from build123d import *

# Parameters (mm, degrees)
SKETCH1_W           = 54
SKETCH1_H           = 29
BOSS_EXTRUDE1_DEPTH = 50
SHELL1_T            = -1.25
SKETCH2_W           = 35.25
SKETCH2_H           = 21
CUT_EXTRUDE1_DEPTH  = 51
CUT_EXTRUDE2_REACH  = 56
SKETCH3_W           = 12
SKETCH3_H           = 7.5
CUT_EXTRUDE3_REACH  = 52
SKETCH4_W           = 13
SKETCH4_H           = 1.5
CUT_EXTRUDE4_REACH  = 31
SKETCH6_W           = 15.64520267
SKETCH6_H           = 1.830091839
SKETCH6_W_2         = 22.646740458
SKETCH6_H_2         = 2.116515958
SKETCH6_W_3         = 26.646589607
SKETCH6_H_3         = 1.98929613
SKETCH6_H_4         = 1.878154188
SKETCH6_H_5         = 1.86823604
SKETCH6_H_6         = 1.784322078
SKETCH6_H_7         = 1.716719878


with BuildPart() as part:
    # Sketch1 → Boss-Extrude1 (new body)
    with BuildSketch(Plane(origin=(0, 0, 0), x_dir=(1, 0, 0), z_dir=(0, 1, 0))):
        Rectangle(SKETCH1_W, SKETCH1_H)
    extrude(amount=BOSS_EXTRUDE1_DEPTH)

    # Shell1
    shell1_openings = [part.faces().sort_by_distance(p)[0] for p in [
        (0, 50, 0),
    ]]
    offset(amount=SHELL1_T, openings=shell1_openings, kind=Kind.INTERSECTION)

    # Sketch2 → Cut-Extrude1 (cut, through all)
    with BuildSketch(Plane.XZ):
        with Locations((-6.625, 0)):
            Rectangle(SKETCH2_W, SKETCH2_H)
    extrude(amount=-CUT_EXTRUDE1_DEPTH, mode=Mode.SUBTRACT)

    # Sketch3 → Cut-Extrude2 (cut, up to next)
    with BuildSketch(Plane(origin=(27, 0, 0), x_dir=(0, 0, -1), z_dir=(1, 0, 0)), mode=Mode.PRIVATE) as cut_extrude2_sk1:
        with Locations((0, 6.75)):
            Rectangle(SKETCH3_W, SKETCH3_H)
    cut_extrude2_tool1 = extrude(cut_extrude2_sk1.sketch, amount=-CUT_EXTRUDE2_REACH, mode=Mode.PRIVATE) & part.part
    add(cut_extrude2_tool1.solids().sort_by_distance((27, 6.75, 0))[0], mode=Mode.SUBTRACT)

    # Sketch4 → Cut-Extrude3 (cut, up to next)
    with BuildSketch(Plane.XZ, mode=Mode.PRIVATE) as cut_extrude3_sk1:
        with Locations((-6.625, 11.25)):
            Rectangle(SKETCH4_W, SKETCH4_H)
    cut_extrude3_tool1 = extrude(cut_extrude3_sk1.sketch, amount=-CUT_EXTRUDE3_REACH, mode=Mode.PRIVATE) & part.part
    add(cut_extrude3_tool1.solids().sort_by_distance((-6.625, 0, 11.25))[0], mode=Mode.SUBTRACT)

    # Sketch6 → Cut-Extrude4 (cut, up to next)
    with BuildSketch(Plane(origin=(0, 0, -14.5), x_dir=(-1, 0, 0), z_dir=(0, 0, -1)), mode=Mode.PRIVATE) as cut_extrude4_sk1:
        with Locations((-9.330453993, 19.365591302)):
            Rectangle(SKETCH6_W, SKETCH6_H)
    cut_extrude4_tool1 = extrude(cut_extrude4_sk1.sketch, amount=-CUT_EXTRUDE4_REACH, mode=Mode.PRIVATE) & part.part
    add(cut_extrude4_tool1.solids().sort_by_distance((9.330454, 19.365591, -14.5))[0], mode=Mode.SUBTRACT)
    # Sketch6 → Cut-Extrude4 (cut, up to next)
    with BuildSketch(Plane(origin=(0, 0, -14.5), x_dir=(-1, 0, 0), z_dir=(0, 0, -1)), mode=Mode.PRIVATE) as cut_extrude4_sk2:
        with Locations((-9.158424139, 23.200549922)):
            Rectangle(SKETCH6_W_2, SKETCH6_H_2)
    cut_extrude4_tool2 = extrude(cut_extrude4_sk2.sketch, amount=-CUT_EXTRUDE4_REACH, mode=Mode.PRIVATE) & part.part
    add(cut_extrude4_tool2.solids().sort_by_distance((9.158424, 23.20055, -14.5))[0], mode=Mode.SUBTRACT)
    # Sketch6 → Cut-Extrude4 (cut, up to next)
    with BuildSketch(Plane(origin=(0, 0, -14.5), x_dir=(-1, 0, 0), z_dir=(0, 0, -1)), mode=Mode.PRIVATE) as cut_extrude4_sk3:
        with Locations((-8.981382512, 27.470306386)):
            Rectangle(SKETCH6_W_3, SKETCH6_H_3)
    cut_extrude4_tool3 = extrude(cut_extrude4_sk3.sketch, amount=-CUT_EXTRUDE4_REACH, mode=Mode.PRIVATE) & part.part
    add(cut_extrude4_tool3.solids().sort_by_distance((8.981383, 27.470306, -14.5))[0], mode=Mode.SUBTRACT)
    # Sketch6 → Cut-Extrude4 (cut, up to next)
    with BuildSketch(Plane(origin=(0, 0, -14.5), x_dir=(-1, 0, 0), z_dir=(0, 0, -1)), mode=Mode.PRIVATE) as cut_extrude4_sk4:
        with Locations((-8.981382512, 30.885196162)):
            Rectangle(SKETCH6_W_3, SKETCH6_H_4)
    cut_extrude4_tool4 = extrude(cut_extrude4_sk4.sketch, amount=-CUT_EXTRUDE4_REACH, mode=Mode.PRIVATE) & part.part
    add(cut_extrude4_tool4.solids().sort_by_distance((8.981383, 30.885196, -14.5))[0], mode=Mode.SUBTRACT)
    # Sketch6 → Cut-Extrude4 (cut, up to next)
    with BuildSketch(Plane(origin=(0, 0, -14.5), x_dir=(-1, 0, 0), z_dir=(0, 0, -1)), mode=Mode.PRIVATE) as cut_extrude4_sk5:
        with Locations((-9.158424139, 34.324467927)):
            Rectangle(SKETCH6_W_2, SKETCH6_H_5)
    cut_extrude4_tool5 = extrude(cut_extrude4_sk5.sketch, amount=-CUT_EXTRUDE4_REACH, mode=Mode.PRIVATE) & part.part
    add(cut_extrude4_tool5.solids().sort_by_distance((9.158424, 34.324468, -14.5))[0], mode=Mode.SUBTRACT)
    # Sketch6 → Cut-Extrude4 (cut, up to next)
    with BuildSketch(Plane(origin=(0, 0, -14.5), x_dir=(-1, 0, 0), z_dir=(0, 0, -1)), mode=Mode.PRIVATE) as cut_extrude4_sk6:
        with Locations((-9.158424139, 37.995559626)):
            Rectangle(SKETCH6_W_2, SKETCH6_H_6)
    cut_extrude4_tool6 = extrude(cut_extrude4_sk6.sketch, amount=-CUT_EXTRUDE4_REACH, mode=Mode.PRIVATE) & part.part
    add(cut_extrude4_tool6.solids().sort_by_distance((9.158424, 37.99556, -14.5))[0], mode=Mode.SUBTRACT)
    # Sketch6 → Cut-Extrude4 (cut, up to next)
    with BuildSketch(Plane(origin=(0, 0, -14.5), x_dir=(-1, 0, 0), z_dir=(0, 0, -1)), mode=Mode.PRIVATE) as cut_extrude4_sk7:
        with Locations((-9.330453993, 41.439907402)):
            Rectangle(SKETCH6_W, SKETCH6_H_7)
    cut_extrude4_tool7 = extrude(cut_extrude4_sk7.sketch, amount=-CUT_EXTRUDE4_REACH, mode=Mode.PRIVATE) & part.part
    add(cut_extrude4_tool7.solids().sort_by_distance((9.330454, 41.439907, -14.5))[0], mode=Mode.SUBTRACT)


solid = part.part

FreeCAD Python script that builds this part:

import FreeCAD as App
import Part
import Sketcher

V = App.Vector
Q = App.Units.Quantity


def faces_at(feature, points):
    """Names of the faces that lie closest to the given points."""
    faces = feature.Shape.Faces
    near = lambda p: min(range(len(faces)), key=lambda i: faces[i].distToShape(Part.Vertex(*p))[0])
    return sorted({f"Face{near(p) + 1}" for p in points})


def add_polygon(sketch, points):
    """Adds a closed chain of lines whose ends are joined by coincident constraints."""
    first, n = sketch.GeometryCount, len(points)
    for a, b in zip(points, points[1:] + points[:1]):
        sketch.addGeometry(Part.LineSegment(App.Vector(*a, 0), App.Vector(*b, 0)), False)
    for i in range(n):
        sketch.addConstraint(Sketcher.Constraint("Coincident", first + i, 2, first + (i + 1) % n, 1))

doc = App.newDocument("Part")
body = doc.addObject("PartDesign::Body", "Body")

sketch1 = body.newObject("Sketcher::SketchObject", "Sketch")
sketch1.AttachmentSupport = (doc.getObject("XZ_Plane"), [""])
sketch1.MapMode = "FlatFace"
add_polygon(sketch1, [(-27, -14), (-27, 14), (27, 14), (27, -14)])
sketch1.addConstraint([
    Sketcher.Constraint("Vertical", 0),
    Sketcher.Constraint("Horizontal", 1),
    Sketcher.Constraint("Vertical", 2),
    Sketcher.Constraint("Horizontal", 3),
    Sketcher.Constraint("Symmetric", 0, 2, 2, 2, -1, 1),
    Sketcher.Constraint("DistanceX", 1, 1, 1, 2, Q("54 mm")),
    Sketcher.Constraint("DistanceY", 0, 1, 0, 2, Q("29 mm")),
])
pad1 = body.newObject("PartDesign::Pad", "Pad")
pad1.Profile = sketch1
pad1.Length = 50
pad1.Reversed = True
doc.recompute()

thickness = body.newObject("PartDesign::Thickness", "Thickness")
thickness.Base = (pad1, faces_at(pad1, [(0, 50, 0)]))
thickness.Value = 1.25
thickness.Reversed = True
thickness.Join = "Intersection"

sketch2 = body.newObject("Sketcher::SketchObject", "Sketch001")
sketch2.AttachmentSupport = (doc.getObject("XZ_Plane"), [""])
sketch2.MapMode = "FlatFace"
add_polygon(sketch2, [(-24, 10), (-24, -10), (11, -10), (11, 10)])
sketch2.addConstraint([
    Sketcher.Constraint("Vertical", 0),
    Sketcher.Constraint("Horizontal", 1),
    Sketcher.Constraint("Vertical", 2),
    Sketcher.Constraint("Horizontal", 3),
    Sketcher.Constraint("DistanceY", 0, 2, 0, 1, Q("21 mm")),
    Sketcher.Constraint("DistanceX", -1, 1, 1, 2, Q("11 mm")),
    Sketcher.Constraint("DistanceX", 1, 1, 1, 2, Q("35.25 mm")),
    Sketcher.Constraint("DistanceY", 0, 2, -1, 1, Q("10.5 mm")),
])
pocket1 = body.newObject("PartDesign::Pocket", "Pocket")
pocket1.Profile = sketch2
pocket1.Type = "ThroughAll"

sketch3 = body.newObject("Sketcher::SketchObject", "Sketch002")
sketch3.AttachmentSupport = (doc.getObject("YZ_Plane"), [""])
sketch3.MapMode = "FlatFace"
sketch3.AttachmentOffset = App.Placement(V(0, 0, 27), App.Rotation())
add_polygon(sketch3, [(10, 6), (3, 6), (3, -6), (10, -6)])
sketch3.addConstraint([
    Sketcher.Constraint("Horizontal", 0),
    Sketcher.Constraint("Vertical", 1),
    Sketcher.Constraint("Horizontal", 2),
    Sketcher.Constraint("Vertical", 3),
    Sketcher.Constraint("DistanceY", 1, 2, 1, 1, Q("12 mm")),
    Sketcher.Constraint("DistanceX", 0, 2, 0, 1, Q("7.5 mm")),
    Sketcher.Constraint("DistanceX", -1, 1, 0, 2, Q("3 mm")),
    Sketcher.Constraint("DistanceY", -1, 1, 0, 2, Q("6 mm")),
])
pocket2 = body.newObject("PartDesign::Pocket", "Pocket001")
pocket2.Profile = sketch3
pocket2.Type = "UpToFirst"

sketch4 = body.newObject("Sketcher::SketchObject", "Sketch003")
sketch4.AttachmentSupport = (doc.getObject("XZ_Plane"), [""])
sketch4.MapMode = "FlatFace"
add_polygon(sketch4, [(-13.1, 12), (-13.1, 10.5), (-0.1, 10.5), (-0.1, 12)])
sketch4.addConstraint([
    Sketcher.Constraint("Vertical", 0),
    Sketcher.Constraint("Horizontal", 1),
    Sketcher.Constraint("Vertical", 2),
    Sketcher.Constraint("Horizontal", 3),
    Sketcher.Constraint("DistanceX", 1, 1, 1, 2, Q("13 mm")),
    Sketcher.Constraint("DistanceY", 0, 2, 0, 1, Q("1.5 mm")),
    Sketcher.Constraint("DistanceY", -1, 1, 2, 2, Q("12 mm")),
    Sketcher.Constraint("DistanceX", 0, 2, -1, 1, Q("13.125 mm")),
])
pocket3 = body.newObject("PartDesign::Pocket", "Pocket002")
pocket3.Profile = sketch4
pocket3.Type = "UpToFirst"

sketch5 = body.newObject("Sketcher::SketchObject", "Sketch004")
sketch5.AttachmentSupport = (doc.getObject("XY_Plane"), [""])
sketch5.MapMode = "FlatFace"
sketch5.AttachmentOffset = App.Placement(V(0, 0, -14.5), App.Rotation())
add_polygon(sketch5, [(17.2, 20.3), (17.2, 18.5), (1.5, 18.5), (1.5, 20.3)])
sketch5.addConstraint([
    Sketcher.Constraint("Vertical", 0),
    Sketcher.Constraint("Horizontal", 1),
    Sketcher.Constraint("Vertical", 2),
    Sketcher.Constraint("Horizontal", 3),
    Sketcher.Constraint("DistanceY", 0, 2, 0, 1, Q("1.830092 mm")),
    Sketcher.Constraint("DistanceX", 1, 2, 1, 1, Q("15.645203 mm")),
    Sketcher.Constraint("DistanceX", -1, 1, 0, 2, Q("17.153055 mm")),
    Sketcher.Constraint("DistanceY", -1, 1, 0, 2, Q("18.450545 mm")),
])
pocket4 = body.newObject("PartDesign::Pocket", "Pocket003")
pocket4.Profile = sketch5
pocket4.Type = "UpToFirst"
pocket4.Reversed = True

sketch6 = body.newObject("Sketcher::SketchObject", "Sketch005")
sketch6.AttachmentSupport = (doc.getObject("XY_Plane"), [""])
sketch6.MapMode = "FlatFace"
sketch6.AttachmentOffset = App.Placement(V(0, 0, -14.5), App.Rotation())
add_polygon(sketch6, [(20.5, 24.3), (20.5, 22.1), (-2.2, 22.1), (-2.2, 24.3)])
sketch6.addConstraint([
    Sketcher.Constraint("Vertical", 0),
    Sketcher.Constraint("Horizontal", 1),
    Sketcher.Constraint("Vertical", 2),
    Sketcher.Constraint("Horizontal", 3),
    Sketcher.Constraint("DistanceX", 1, 2, 1, 1, Q("22.64674 mm")),
    Sketcher.Constraint("DistanceY", 0, 2, 0, 1, Q("2.116516 mm")),
    Sketcher.Constraint("DistanceY", -1, 1, 0, 2, Q("22.142292 mm")),
    Sketcher.Constraint("DistanceX", -1, 1, 0, 2, Q("20.481794 mm")),
])
pocket5 = body.newObject("PartDesign::Pocket", "Pocket004")
pocket5.Profile = sketch6
pocket5.Type = "UpToFirst"
pocket5.Reversed = True

sketch7 = body.newObject("Sketcher::SketchObject", "Sketch006")
sketch7.AttachmentSupport = (doc.getObject("XY_Plane"), [""])
sketch7.MapMode = "FlatFace"
sketch7.AttachmentOffset = App.Placement(V(0, 0, -14.5), App.Rotation())
add_polygon(sketch7, [(22.3, 28.5), (22.3, 26.5), (-4.3, 26.5), (-4.3, 28.5)])
sketch7.addConstraint([
    Sketcher.Constraint("Vertical", 0),
    Sketcher.Constraint("Horizontal", 1),
    Sketcher.Constraint("Vertical", 2),
    Sketcher.Constraint("Horizontal", 3),
    Sketcher.Constraint("DistanceX", 1, 2, 1, 1, Q("26.64659 mm")),
    Sketcher.Constraint("DistanceY", 0, 2, 0, 1, Q("1.989296 mm")),
    Sketcher.Constraint("DistanceY", -1, 1, 0, 2, Q("26.475658 mm")),
    Sketcher.Constraint("DistanceX", -1, 1, 0, 2, Q("22.304677 mm")),
])
pocket6 = body.newObject("PartDesign::Pocket", "Pocket005")
pocket6.Profile = sketch7
pocket6.Type = "UpToFirst"
pocket6.Reversed = True

sketch8 = body.newObject("Sketcher::SketchObject", "Sketch007")
sketch8.AttachmentSupport = (doc.getObject("XY_Plane"), [""])
sketch8.MapMode = "FlatFace"
sketch8.AttachmentOffset = App.Placement(V(0, 0, -14.5), App.Rotation())
add_polygon(sketch8, [(22.3, 31.8), (22.3, 29.9), (-4.3, 29.9), (-4.3, 31.8)])
sketch8.addConstraint([
    Sketcher.Constraint("Vertical", 0),
    Sketcher.Constraint("Horizontal", 1),
    Sketcher.Constraint("Vertical", 2),
    Sketcher.Constraint("Horizontal", 3),
    Sketcher.Constraint("DistanceX", 1, 2, 1, 1, Q("26.64659 mm")),
    Sketcher.Constraint("DistanceY", 0, 2, 0, 1, Q("1.878154 mm")),
    Sketcher.Constraint("DistanceY", -1, 1, 0, 2, Q("29.946119 mm")),
    Sketcher.Constraint("DistanceX", -1, 1, 0, 2, Q("22.304677 mm")),
])
pocket7 = body.newObject("PartDesign::Pocket", "Pocket006")
pocket7.Profile = sketch8
pocket7.Type = "UpToFirst"
pocket7.Reversed = True

sketch9 = body.newObject("Sketcher::SketchObject", "Sketch008")
sketch9.AttachmentSupport = (doc.getObject("XY_Plane"), [""])
sketch9.MapMode = "FlatFace"
sketch9.AttachmentOffset = App.Placement(V(0, 0, -14.5), App.Rotation())
add_polygon(sketch9, [(20.5, 35.3), (20.5, 33.4), (-2.2, 33.4), (-2.2, 35.3)])
sketch9.addConstraint([
    Sketcher.Constraint("Vertical", 0),
    Sketcher.Constraint("Horizontal", 1),
    Sketcher.Constraint("Vertical", 2),
    Sketcher.Constraint("Horizontal", 3),
    Sketcher.Constraint("DistanceX", 1, 2, 1, 1, Q("22.64674 mm")),
    Sketcher.Constraint("DistanceY", 0, 2, 0, 1, Q("1.868236 mm")),
    Sketcher.Constraint("DistanceY", -1, 1, 0, 2, Q("33.39035 mm")),
    Sketcher.Constraint("DistanceX", -1, 1, 0, 2, Q("20.481794 mm")),
])
pocket8 = body.newObject("PartDesign::Pocket", "Pocket007")
pocket8.Profile = sketch9
pocket8.Type = "UpToFirst"
pocket8.Reversed = True

sketch10 = body.newObject("Sketcher::SketchObject", "Sketch009")
sketch10.AttachmentSupport = (doc.getObject("XY_Plane"), [""])
sketch10.MapMode = "FlatFace"
sketch10.AttachmentOffset = App.Placement(V(0, 0, -14.5), App.Rotation())
add_polygon(sketch10, [(20.5, 38.9), (20.5, 37.1), (-2.2, 37.1), (-2.2, 38.9)])
sketch10.addConstraint([
    Sketcher.Constraint("Vertical", 0),
    Sketcher.Constraint("Horizontal", 1),
    Sketcher.Constraint("Vertical", 2),
    Sketcher.Constraint("Horizontal", 3),
    Sketcher.Constraint("DistanceX", 1, 2, 1, 1, Q("22.64674 mm")),
    Sketcher.Constraint("DistanceY", -1, 1, 0, 2, Q("37.103399 mm")),
    Sketcher.Constraint("DistanceY", 0, 2, 0, 1, Q("1.784322 mm")),
    Sketcher.Constraint("DistanceX", -1, 1, 0, 2, Q("20.481794 mm")),
])
pocket9 = body.newObject("PartDesign::Pocket", "Pocket008")
pocket9.Profile = sketch10
pocket9.Type = "UpToFirst"
pocket9.Reversed = True

sketch11 = body.newObject("Sketcher::SketchObject", "Sketch010")
sketch11.AttachmentSupport = (doc.getObject("XY_Plane"), [""])
sketch11.MapMode = "FlatFace"
sketch11.AttachmentOffset = App.Placement(V(0, 0, -14.5), App.Rotation())
add_polygon(sketch11, [(17.2, 42.3), (17.2, 40.6), (1.5, 40.6), (1.5, 42.3)])
sketch11.addConstraint([
    Sketcher.Constraint("Vertical", 0),
    Sketcher.Constraint("Horizontal", 1),
    Sketcher.Constraint("Vertical", 2),
    Sketcher.Constraint("Horizontal", 3),
    Sketcher.Constraint("DistanceY", 0, 2, 0, 1, Q("1.71672 mm")),
    Sketcher.Constraint("DistanceX", 1, 2, 1, 1, Q("15.645203 mm")),
    Sketcher.Constraint("DistanceX", -1, 1, 0, 2, Q("17.153055 mm")),
    Sketcher.Constraint("DistanceY", -1, 1, 0, 2, Q("40.581547 mm")),
])
pocket10 = body.newObject("PartDesign::Pocket", "Pocket009")
pocket10.Profile = sketch11
pocket10.Type = "UpToFirst"
pocket10.Reversed = True

doc.recompute()
